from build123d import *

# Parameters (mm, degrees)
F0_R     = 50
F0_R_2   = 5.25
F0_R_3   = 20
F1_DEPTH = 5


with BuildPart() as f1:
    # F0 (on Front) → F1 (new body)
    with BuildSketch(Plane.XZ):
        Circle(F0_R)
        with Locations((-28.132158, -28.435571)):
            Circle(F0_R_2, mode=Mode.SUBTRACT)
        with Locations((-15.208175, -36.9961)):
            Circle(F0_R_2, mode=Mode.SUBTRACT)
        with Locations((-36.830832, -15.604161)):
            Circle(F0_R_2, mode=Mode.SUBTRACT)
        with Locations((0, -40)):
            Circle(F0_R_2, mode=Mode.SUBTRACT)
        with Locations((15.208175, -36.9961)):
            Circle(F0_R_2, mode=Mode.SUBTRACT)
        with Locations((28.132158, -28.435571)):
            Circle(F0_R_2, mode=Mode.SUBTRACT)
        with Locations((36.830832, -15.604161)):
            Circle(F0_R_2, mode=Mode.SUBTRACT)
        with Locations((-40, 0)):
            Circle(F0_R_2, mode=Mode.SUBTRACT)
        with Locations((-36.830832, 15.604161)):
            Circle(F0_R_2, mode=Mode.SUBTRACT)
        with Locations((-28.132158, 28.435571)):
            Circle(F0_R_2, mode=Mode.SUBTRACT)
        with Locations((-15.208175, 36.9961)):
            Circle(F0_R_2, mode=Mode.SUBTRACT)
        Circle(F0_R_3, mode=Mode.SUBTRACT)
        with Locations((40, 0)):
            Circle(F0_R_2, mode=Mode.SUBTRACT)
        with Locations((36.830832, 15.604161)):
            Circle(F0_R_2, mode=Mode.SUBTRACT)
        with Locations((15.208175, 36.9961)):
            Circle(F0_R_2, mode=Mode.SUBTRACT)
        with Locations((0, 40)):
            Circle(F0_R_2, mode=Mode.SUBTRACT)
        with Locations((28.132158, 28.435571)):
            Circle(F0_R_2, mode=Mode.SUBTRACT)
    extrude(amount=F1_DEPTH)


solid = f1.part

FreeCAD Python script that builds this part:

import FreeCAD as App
import Part
import Sketcher
Q = App.Units.Quantity

doc = App.newDocument("Part")
body = doc.addObject("PartDesign::Body", "Body")

sketch1 = body.newObject("Sketcher::SketchObject", "Sketch")
sketch1.AttachmentSupport = (doc.getObject("XZ_Plane"), [""])
sketch1.MapMode = "FlatFace"
sketch1.addGeometry([
    Part.Circle(App.Vector(0, 0, 0), App.Vector(0, 0, 1), 50),
    Part.Circle(App.Vector(-28, -28, 0), App.Vector(0, 0, 1), 5),
    Part.Circle(App.Vector(-15, -37, 0), App.Vector(0, 0, 1), 5),
    Part.Circle(App.Vector(-37, -16, 0), App.Vector(0, 0, 1), 5),
    Part.Circle(App.Vector(0, -40, 0), App.Vector(0, 0, 1), 5),
    Part.Circle(App.Vector(15, -37, 0), App.Vector(0, 0, 1), 5),
    Part.Circle(App.Vector(28, -28, 0), App.Vector(0, 0, 1), 5),
    Part.Circle(App.Vector(37, -16, 0), App.Vector(0, 0, 1), 5),
    Part.Circle(App.Vector(-40, 0, 0), App.Vector(0, 0, 1), 5),
    Part.Circle(App.Vector(-37, 16, 0), App.Vector(0, 0, 1), 5),
    Part.Circle(App.Vector(-28, 28, 0), App.Vector(0, 0, 1), 5),
    Part.Circle(App.Vector(-15, 37, 0), App.Vector(0, 0, 1), 5),
    Part.Circle(App.Vector(0, 0, 0), App.Vector(0, 0, 1), 20),
    Part.Circle(App.Vector(40, 0, 0), App.Vector(0, 0, 1), 5),
    Part.Circle(App.Vector(37, 16, 0), App.Vector(0, 0, 1), 5),
    Part.Circle(App.Vector(0, 40, 0), App.Vector(0, 0, 1), 5),
    Part.Circle(App.Vector(15, 37, 0), App.Vector(0, 0, 1), 5),
    Part.Circle(App.Vector(28, 28, 0), App.Vector(0, 0, 1), 5),
], False)
sketch1.addConstraint([
    Sketcher.Constraint("Coincident", 0, 3, -1, 1),
    Sketcher.Constraint("Coincident", 12, 3, -1, 1),
    Sketcher.Constraint("Equal", 1, 2),
    Sketcher.Constraint("Equal", 2, 3),
    Sketcher.Constraint("Equal", 3, 4),
    Sketcher.Constraint("Equal", 4, 5),
    Sketcher.Constraint("Equal", 5, 6),
    Sketcher.Constraint("Equal", 6, 7),
    Sketcher.Constraint("Equal", 7, 8),
    Sketcher.Constraint("Equal", 8, 9),
    Sketcher.Constraint("Equal", 9, 10),
    Sketcher.Constraint("Equal", 10, 11),
    Sketcher.Constraint("Equal", 11, 13),
    Sketcher.Constraint("Equal", 13, 14),
    Sketcher.Constraint("Equal", 14, 15),
    Sketcher.Constraint("Equal", 15, 16),
    Sketcher.Constraint("Equal", 16, 17),
    Sketcher.Constraint("Symmetric", 7, 3, 9, 3, -1, 1),
    Sketcher.Constraint("Symmetric", 6, 3, 10, 3, -1, 1),
    Sketcher.Constraint("Symmetric", 5, 3, 11, 3, -1, 1),
    Sketcher.Constraint("Symmetric", 8, 3, 13, 3, -1, 1),
    Sketcher.Constraint("Symmetric", 3, 3, 14, 3, -1, 1),
    Sketcher.Constraint("Symmetric", 4, 3, 15, 3, -1, 1),
    Sketcher.Constraint("Symmetric", 2, 3, 16, 3, -1, 1),
    Sketcher.Constraint("Symmetric", 1, 3, 17, 3, -1, 1),
    Sketcher.Constraint("Symmetric", 2, 3, 5, 3, -2),
    Sketcher.Constraint("Symmetric", 1, 3, 6, 3, -2),
    Sketcher.Constraint("Symmetric", 3, 3, 7, 3, -2),
    Sketcher.Constraint("PointOnObject", 4, 3, -2),
    Sketcher.Constraint("PointOnObject", 8, 3, -1),
    Sketcher.Constraint("Diameter", 0, Q("100 mm")),
    Sketcher.Constraint("Diameter", 12, Q("40 mm")),
    Sketcher.Constraint("Diameter", 1, Q("10.5 mm")),
    Sketcher.Constraint("DistanceY", 4, 3, -1, 1, Q("40 mm")),
    Sketcher.Constraint("DistanceX", 8, 3, -1, 1, Q("40 mm")),
    Sketcher.Constraint("DistanceY", 2, 3, -1, 1, Q("36.9961 mm")),
    Sketcher.Constraint("DistanceX", 1, 3, -1, 1, Q("28.132158 mm")),
    Sketcher.Constraint("DistanceY", 1, 3, -1, 1, Q("28.435571 mm")),
    Sketcher.Constraint("DistanceY", 3, 3, -1, 1, Q("15.604161 mm")),
    Sketcher.Constraint("DistanceX", 2, 3, 5, 3, Q("30.41635 mm")),
    Sketcher.Constraint("DistanceX", 3, 3, -1, 1, Q("36.830832 mm")),
])
pad1 = body.newObject("PartDesign::Pad", "Pad")
pad1.Profile = sketch1
pad1.Length = 5

doc.recompute()
